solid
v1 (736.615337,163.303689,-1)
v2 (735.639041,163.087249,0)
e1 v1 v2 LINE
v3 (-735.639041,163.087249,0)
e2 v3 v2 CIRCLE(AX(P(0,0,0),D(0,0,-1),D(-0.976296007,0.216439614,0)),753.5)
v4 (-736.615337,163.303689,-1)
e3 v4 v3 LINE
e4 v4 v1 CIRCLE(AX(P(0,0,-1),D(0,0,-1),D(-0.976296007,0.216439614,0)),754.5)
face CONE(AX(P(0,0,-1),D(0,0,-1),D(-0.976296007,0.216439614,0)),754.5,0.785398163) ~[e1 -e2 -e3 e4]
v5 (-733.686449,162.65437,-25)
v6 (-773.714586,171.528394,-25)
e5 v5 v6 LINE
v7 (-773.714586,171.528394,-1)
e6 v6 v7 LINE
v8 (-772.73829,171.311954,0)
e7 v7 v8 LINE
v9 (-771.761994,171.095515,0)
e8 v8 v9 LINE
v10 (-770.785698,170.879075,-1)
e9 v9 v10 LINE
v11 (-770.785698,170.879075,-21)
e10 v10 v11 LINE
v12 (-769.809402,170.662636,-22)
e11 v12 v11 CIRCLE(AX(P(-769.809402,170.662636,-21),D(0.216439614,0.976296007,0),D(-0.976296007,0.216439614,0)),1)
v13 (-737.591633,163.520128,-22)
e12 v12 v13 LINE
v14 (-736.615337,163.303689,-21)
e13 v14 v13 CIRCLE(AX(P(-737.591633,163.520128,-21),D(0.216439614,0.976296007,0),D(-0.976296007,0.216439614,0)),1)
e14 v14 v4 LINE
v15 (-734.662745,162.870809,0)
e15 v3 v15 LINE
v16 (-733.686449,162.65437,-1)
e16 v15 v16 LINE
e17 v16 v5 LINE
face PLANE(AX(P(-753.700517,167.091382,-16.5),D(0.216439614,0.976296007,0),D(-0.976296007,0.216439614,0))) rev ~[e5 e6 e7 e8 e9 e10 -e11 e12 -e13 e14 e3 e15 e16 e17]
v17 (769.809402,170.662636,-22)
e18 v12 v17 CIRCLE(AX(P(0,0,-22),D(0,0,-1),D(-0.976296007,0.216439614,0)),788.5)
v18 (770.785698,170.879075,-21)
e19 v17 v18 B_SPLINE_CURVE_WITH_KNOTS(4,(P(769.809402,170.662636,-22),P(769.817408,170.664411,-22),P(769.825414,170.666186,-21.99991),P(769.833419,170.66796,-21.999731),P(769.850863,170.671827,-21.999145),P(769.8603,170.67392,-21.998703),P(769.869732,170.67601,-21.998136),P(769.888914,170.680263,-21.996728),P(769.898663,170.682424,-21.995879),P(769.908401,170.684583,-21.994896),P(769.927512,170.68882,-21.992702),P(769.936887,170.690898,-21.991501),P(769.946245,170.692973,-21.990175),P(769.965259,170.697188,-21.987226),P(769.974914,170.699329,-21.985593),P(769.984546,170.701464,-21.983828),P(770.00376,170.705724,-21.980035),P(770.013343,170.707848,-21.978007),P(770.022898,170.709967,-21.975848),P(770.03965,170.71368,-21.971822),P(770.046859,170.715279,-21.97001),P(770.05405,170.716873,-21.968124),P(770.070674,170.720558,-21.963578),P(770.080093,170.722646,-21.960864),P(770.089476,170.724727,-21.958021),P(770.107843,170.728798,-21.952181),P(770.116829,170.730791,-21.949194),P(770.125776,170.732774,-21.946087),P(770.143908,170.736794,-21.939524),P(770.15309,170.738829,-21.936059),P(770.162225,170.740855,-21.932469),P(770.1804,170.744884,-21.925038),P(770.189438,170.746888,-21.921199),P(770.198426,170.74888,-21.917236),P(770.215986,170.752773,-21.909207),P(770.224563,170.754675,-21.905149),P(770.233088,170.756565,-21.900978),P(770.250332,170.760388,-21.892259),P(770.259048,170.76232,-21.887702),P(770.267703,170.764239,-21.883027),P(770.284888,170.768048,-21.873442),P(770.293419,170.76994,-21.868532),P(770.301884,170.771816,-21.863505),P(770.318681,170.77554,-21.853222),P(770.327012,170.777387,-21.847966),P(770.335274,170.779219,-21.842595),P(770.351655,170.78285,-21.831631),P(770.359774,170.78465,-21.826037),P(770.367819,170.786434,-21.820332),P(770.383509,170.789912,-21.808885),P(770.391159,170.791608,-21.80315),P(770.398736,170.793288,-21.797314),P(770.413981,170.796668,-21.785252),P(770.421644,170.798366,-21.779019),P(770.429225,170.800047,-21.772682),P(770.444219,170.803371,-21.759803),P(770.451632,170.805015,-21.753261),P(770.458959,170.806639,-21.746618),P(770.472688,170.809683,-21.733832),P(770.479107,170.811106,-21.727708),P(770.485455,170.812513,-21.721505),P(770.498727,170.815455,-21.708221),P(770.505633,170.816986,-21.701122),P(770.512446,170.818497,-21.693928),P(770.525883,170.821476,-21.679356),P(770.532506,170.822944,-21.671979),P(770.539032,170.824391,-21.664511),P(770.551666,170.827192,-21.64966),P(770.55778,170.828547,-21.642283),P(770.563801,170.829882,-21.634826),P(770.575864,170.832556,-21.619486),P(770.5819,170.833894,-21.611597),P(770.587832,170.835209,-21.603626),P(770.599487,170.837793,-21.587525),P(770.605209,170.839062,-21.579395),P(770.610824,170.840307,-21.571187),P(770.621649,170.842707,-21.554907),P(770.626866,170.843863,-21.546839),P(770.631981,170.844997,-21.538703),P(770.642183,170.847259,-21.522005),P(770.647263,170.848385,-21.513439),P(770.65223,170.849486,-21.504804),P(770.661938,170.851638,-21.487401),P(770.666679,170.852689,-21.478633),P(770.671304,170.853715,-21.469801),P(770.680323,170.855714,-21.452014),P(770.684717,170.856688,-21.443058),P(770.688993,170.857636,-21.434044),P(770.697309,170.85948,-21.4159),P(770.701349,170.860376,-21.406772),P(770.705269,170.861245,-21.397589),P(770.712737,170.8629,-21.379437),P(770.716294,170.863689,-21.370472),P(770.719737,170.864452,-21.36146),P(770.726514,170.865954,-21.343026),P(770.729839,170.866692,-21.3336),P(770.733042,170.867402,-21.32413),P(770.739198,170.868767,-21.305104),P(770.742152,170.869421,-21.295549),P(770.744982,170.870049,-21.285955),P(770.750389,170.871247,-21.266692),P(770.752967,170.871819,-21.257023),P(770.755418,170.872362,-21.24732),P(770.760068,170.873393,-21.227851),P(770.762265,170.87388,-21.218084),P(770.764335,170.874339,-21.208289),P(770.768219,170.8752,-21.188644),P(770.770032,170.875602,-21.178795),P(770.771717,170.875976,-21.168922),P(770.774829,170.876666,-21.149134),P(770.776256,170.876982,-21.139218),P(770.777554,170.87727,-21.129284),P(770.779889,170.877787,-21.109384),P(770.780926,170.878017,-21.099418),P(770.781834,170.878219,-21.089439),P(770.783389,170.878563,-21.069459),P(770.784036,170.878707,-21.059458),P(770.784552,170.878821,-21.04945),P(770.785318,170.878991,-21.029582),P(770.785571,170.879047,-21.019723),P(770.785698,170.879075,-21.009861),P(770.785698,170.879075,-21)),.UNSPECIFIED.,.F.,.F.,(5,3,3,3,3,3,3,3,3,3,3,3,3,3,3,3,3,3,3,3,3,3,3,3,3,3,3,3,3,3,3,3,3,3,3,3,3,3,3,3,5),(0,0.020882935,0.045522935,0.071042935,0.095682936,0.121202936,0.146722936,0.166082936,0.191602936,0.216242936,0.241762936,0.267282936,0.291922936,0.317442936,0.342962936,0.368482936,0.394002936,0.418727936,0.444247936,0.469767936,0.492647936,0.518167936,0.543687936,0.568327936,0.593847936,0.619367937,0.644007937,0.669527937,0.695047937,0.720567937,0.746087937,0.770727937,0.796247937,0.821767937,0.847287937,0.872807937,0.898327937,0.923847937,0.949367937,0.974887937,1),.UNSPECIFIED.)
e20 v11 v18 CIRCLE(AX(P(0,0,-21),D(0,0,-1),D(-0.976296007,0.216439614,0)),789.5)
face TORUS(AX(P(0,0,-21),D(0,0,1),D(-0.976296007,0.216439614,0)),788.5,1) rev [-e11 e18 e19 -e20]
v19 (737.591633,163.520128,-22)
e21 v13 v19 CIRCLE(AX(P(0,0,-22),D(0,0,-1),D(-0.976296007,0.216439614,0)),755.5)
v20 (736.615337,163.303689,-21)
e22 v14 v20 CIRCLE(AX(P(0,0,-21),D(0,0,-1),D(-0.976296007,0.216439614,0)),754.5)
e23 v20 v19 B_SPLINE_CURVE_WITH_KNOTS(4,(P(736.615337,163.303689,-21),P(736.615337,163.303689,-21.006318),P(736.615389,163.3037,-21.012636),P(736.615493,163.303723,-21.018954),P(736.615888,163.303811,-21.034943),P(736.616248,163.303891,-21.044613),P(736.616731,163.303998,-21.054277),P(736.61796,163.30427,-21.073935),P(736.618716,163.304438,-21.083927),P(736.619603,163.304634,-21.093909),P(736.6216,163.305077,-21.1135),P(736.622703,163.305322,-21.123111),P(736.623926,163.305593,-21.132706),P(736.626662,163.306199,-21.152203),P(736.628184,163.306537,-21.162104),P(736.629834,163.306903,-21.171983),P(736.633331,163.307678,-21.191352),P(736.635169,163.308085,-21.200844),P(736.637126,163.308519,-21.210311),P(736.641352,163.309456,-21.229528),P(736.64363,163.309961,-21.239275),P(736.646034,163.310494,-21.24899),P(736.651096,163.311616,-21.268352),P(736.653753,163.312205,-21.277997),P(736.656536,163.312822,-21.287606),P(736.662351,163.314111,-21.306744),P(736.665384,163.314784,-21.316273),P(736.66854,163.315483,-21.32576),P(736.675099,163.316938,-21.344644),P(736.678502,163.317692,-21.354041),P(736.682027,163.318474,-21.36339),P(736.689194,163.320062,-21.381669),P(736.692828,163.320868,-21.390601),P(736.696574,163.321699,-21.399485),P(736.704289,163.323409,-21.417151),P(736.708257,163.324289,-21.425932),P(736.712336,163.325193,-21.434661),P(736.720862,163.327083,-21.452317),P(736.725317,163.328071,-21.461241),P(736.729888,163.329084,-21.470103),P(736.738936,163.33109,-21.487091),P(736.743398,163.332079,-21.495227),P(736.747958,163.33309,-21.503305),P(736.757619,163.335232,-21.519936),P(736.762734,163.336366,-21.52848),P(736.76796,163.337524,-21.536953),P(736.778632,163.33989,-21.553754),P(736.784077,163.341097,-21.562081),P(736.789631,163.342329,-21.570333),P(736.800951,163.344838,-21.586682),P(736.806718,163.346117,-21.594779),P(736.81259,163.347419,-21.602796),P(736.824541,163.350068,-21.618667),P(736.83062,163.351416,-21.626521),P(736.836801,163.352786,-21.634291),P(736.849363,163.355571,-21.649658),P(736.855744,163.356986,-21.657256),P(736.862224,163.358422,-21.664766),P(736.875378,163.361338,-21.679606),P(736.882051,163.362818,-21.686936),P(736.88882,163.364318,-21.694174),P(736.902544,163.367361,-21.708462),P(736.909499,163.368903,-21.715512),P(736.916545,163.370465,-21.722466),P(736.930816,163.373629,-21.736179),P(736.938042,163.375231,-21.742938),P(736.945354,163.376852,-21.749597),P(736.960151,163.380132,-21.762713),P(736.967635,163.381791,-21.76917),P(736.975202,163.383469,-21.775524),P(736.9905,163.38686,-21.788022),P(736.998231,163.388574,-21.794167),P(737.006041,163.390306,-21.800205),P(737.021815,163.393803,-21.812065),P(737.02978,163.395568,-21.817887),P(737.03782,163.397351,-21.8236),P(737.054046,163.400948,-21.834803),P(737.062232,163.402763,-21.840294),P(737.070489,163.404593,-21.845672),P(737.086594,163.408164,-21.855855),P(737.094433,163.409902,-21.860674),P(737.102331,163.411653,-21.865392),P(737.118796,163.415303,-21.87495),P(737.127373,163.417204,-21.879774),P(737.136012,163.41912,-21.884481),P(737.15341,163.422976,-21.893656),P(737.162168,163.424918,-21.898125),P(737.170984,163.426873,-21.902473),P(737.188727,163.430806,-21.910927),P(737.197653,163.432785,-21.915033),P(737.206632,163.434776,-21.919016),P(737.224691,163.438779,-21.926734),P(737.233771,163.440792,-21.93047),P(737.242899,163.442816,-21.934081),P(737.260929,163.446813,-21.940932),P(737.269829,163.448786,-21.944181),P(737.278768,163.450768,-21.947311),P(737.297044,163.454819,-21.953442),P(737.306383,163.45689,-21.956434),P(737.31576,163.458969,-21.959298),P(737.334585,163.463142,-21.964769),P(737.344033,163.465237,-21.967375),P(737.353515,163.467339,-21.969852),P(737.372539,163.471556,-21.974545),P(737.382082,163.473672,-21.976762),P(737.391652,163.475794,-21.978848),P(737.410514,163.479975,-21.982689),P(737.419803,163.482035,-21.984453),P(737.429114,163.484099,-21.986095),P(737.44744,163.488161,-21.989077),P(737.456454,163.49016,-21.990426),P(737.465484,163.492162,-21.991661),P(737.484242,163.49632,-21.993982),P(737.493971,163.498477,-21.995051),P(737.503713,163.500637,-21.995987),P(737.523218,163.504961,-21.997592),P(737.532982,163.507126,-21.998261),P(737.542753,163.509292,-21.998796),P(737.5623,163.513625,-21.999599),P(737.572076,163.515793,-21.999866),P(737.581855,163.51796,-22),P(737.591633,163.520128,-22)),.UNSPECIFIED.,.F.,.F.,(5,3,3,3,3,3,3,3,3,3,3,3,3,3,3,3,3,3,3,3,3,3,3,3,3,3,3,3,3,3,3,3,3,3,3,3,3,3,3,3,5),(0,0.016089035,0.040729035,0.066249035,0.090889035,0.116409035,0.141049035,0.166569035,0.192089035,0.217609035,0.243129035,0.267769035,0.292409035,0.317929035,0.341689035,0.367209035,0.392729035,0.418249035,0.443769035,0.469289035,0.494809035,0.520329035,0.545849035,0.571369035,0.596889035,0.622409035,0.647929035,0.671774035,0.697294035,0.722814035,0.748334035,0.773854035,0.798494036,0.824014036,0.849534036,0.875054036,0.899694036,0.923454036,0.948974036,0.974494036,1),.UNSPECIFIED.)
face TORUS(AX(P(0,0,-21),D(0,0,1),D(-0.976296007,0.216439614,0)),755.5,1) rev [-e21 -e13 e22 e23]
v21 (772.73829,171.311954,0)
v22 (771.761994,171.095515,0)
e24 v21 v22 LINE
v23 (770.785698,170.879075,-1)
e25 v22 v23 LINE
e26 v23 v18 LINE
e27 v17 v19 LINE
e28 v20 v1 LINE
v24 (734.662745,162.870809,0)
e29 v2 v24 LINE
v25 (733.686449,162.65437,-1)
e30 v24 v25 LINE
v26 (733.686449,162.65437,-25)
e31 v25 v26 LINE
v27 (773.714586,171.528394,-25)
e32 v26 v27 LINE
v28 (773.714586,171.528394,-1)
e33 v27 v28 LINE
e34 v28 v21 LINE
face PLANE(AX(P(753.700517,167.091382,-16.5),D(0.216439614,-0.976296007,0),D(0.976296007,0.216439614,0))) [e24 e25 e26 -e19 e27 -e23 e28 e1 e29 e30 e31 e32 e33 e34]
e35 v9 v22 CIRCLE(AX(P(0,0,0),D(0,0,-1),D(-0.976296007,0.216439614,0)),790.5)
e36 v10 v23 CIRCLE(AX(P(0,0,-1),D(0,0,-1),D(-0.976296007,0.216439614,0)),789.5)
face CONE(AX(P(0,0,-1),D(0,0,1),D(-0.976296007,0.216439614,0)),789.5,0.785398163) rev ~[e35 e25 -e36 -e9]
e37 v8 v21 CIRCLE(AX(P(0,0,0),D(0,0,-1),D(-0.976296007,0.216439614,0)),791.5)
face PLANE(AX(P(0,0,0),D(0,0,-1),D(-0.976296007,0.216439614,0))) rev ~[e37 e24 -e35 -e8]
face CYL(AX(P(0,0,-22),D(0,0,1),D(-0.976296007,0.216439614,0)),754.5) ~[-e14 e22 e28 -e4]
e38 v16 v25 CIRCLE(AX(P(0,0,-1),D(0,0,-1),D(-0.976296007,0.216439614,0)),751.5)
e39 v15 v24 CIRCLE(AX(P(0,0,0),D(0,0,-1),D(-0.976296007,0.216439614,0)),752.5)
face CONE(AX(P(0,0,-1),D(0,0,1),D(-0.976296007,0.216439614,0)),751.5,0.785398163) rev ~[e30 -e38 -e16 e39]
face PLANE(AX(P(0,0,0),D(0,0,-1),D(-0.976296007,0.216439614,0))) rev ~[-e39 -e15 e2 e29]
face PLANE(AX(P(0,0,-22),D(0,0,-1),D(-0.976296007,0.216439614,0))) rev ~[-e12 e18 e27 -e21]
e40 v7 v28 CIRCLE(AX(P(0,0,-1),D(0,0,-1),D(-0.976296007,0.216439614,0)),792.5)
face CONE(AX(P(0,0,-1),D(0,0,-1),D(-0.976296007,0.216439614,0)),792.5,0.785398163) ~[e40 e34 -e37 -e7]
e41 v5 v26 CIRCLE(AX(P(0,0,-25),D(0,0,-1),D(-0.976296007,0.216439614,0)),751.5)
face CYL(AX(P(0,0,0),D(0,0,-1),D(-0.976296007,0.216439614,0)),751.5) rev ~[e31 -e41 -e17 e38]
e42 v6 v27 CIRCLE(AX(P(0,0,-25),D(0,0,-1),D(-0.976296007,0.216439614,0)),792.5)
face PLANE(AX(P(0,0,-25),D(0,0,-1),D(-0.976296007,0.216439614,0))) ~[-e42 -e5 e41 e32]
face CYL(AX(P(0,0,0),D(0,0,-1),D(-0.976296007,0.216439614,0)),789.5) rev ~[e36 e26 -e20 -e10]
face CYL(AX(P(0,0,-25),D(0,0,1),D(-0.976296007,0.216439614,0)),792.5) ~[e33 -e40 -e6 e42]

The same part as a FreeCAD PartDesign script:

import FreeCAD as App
import Part
import Sketcher
Q = App.Units.Quantity


def edges_at(feature, points):
    """Names of the edges that pass closest to the given points."""
    edges = feature.Shape.Edges
    near = lambda p: min(range(len(edges)), key=lambda i: edges[i].distToShape(Part.Vertex(*p))[0])
    return sorted({f"Edge{near(p) + 1}" for p in points})

doc = App.newDocument("Part")
body = doc.addObject("PartDesign::Body", "Body")

# Sketch on an angled plane
sketch1 = body.newObject("Sketcher::SketchObject", "Sketch")
sketch1.Placement = App.Placement(App.Vector(0, 0, 0), App.Rotation(App.Vector(-0.976296007, 0.216439614, 0), App.Vector(0, 0, 1), App.Vector(0.216439614, 0.976296007, 0), "ZXY"))
sketch1.addGeometry([
    Part.LineSegment(App.Vector(754.5, -22, 0), App.Vector(754.5, 0, 0)),  # 0
    Part.LineSegment(App.Vector(754.5, 0, 0), App.Vector(751.5, 0, 0)),  # 1
    Part.LineSegment(App.Vector(751.5, 0, 0), App.Vector(751.5, -25, 0)),  # 2
    Part.LineSegment(App.Vector(751.5, -25, 0), App.Vector(792.5, -25, 0)),  # 3
    Part.LineSegment(App.Vector(792.5, -25, 0), App.Vector(792.5, 0, 0)),  # 4
    Part.LineSegment(App.Vector(792.5, 0, 0), App.Vector(789.5, 0, 0)),  # 5
    Part.LineSegment(App.Vector(789.5, 0, 0), App.Vector(789.5, -22, 0)),  # 6
    Part.LineSegment(App.Vector(789.5, -22, 0), App.Vector(754.5, -22, 0)),  # 7
], False)
sketch1.addConstraint([
    Sketcher.Constraint("Coincident", 0, 2, 1, 1),
    Sketcher.Constraint("Coincident", 1, 2, 2, 1),
    Sketcher.Constraint("Coincident", 2, 2, 3, 1),
    Sketcher.Constraint("Coincident", 3, 2, 4, 1),
    Sketcher.Constraint("Coincident", 4, 2, 5, 1),
    Sketcher.Constraint("Coincident", 5, 2, 6, 1),
    Sketcher.Constraint("Coincident", 6, 2, 7, 1),
    Sketcher.Constraint("Coincident", 7, 2, 0, 1),
    Sketcher.Constraint("Vertical", 0),
    Sketcher.Constraint("Horizontal", 1),
    Sketcher.Constraint("Vertical", 2),
    Sketcher.Constraint("Horizontal", 3),
    Sketcher.Constraint("Vertical", 4),
    Sketcher.Constraint("Horizontal", 5),
    Sketcher.Constraint("Vertical", 6),
    Sketcher.Constraint("Horizontal", 7),
    Sketcher.Constraint("PointOnObject", 0, 2, -1),
    Sketcher.Constraint("PointOnObject", 4, 2, -1),
    Sketcher.Constraint("Equal", 1, 5),
    Sketcher.Constraint("DistanceX", 1, 2, 1, 1, Q("3 mm")),
    Sketcher.Constraint("DistanceX", 3, 1, 3, 2, Q("41 mm")),
    Sketcher.Constraint("DistanceY", 0, 1, 0, 2, Q("22 mm")),
    Sketcher.Constraint("DistanceY", 2, 2, 2, 1, Q("25 mm")),
    Sketcher.Constraint("DistanceX", -1, 1, 0, 2, Q("754.5 mm")),
])
revolution = body.newObject("PartDesign::Revolution", "Revolution")
revolution.Profile = sketch1
revolution.ReferenceAxis = (sketch1, ["V_Axis"])
revolution.Angle = 155
revolution.Reversed = True
doc.recompute()

chamfer = body.newObject("PartDesign::Chamfer", "Chamfer")
chamfer.Base = (revolution, edges_at(revolution, [
    (0, 789.5, 0),
    (0, 792.5, 0),
    (0, 751.5, 0),
    (0, 754.5, 0),
]))
chamfer.Size = 1
doc.recompute()

fillet = body.newObject("PartDesign::Fillet", "Fillet")
fillet.Base = (chamfer, edges_at(chamfer, [(0, 789.5, -22), (0, 754.5, -22)]))
fillet.Radius = 1

doc.recompute()
